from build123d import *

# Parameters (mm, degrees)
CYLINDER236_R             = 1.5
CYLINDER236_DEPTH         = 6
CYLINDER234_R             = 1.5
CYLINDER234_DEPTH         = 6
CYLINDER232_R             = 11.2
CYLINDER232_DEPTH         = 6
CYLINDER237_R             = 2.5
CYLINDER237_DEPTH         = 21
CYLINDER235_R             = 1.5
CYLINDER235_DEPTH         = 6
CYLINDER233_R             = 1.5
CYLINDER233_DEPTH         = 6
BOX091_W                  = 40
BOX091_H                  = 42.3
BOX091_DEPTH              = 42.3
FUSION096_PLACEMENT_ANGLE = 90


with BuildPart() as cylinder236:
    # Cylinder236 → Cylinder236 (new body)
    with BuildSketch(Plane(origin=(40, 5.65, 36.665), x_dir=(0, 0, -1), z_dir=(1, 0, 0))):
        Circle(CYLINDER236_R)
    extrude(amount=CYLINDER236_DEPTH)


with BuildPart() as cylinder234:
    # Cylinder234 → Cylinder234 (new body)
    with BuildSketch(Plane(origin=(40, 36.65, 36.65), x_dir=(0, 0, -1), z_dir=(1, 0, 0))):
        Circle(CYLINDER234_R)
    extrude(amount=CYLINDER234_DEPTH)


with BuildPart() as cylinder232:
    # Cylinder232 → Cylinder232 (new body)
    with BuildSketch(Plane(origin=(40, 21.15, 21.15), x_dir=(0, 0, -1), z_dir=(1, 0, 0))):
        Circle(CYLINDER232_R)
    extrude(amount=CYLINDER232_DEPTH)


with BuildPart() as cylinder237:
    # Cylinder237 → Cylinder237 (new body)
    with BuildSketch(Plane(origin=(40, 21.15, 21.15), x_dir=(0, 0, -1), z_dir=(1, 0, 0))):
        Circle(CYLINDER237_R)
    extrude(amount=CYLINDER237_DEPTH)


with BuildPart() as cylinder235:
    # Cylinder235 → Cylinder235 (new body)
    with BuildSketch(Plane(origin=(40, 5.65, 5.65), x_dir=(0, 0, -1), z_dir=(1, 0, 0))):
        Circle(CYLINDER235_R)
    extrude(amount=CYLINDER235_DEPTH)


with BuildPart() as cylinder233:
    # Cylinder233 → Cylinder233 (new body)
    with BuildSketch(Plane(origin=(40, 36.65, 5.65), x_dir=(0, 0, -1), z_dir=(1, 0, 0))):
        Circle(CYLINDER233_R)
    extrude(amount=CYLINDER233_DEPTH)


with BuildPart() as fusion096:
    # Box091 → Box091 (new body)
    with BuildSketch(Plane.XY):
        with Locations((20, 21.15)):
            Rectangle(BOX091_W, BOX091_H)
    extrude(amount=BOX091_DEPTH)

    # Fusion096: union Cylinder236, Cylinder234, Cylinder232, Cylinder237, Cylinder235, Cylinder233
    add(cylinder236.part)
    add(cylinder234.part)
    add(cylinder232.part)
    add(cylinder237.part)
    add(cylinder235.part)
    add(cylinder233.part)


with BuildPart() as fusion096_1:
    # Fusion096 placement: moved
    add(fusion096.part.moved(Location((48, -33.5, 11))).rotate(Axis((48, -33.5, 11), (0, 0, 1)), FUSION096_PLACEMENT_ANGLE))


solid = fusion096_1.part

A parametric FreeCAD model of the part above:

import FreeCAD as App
import Part
import Sketcher


def add_polygon(sketch, points):
    """Adds a closed chain of lines whose ends are joined by coincident constraints."""
    first, n = sketch.GeometryCount, len(points)
    for a, b in zip(points, points[1:] + points[:1]):
        sketch.addGeometry(Part.LineSegment(App.Vector(*a, 0), App.Vector(*b, 0)), False)
    for i in range(n):
        sketch.addConstraint(Sketcher.Constraint("Coincident", first + i, 2, first + (i + 1) % n, 1))

doc = App.newDocument("Part")
params = doc.addObject("Spreadsheet::Sheet", "Params")
for row, (alias, value) in enumerate([
    ("sketch1_diameter", "3 mm"),
    ("pad1_length", "6 mm"),
    ("sketch2_diameter", "3 mm"),
    ("pad2_length", "6 mm"),
    ("sketch3_diameter", "22.4 mm"),
    ("pad3_length", "6 mm"),
    ("sketch4_diameter", "5 mm"),
    ("pad4_length", "21 mm"),
    ("sketch5_diameter", "3 mm"),
    ("pad5_length", "6 mm"),
    ("sketch6_diameter", "3 mm"),
    ("pad6_length", "6 mm"),
    ("sketch7_width", "40 mm"),
    ("sketch7_height", "42.3 mm"),
    ("pad7_length", "42.3 mm"),
], start=1):
    params.set(f"A{row}", alias)
    params.set(f"B{row}", "=" + value)
    params.setAlias(f"B{row}", alias)

body = doc.addObject("PartDesign::Body", "Body")

sketch1 = body.newObject("Sketcher::SketchObject", "Sketch")
sketch1.AttachmentSupport = (doc.getObject("YZ_Plane"), [""])
sketch1.MapMode = "FlatFace"
sketch1.AttachmentOffset = App.Placement(App.Vector(0, 0, 40), App.Rotation())
sketch1.addGeometry(Part.Circle(App.Vector(5.7, 36.7, 0), App.Vector(0, 0, 1), 1.5), False)
sketch1.addConstraint([
    Sketcher.Constraint("Diameter", 0, 3.0),
    Sketcher.Constraint("DistanceX", -1, 1, 0, 3, 5.65),
    Sketcher.Constraint("DistanceY", -1, 1, 0, 3, 36.665),
])
sketch1.setExpression("Constraints[0]", "Params.sketch1_diameter")
pad1 = body.newObject("PartDesign::Pad", "Pad")
pad1.Profile = sketch1
pad1.setExpression("Length", "Params.pad1_length")
body2 = doc.addObject("PartDesign::Body", "Body001")

sketch2 = body2.newObject("Sketcher::SketchObject", "Sketch001")
sketch2.AttachmentSupport = (doc.getObject("YZ_Plane001"), [""])
sketch2.MapMode = "FlatFace"
sketch2.AttachmentOffset = App.Placement(App.Vector(0, 0, 40), App.Rotation())
sketch2.addGeometry(Part.Circle(App.Vector(36.6, 36.6, 0), App.Vector(0, 0, 1), 1.5), False)
sketch2.addConstraint([
    Sketcher.Constraint("Diameter", 0, 3.0),
    Sketcher.Constraint("DistanceX", -1, 1, 0, 3, 36.65),
    Sketcher.Constraint("DistanceY", -1, 1, 0, 3, 36.65),
])
sketch2.setExpression("Constraints[0]", "Params.sketch2_diameter")
pad2 = body2.newObject("PartDesign::Pad", "Pad001")
pad2.Profile = sketch2
pad2.setExpression("Length", "Params.pad2_length")
body3 = doc.addObject("PartDesign::Body", "Body002")

sketch3 = body3.newObject("Sketcher::SketchObject", "Sketch002")
sketch3.AttachmentSupport = (doc.getObject("YZ_Plane002"), [""])
sketch3.MapMode = "FlatFace"
sketch3.AttachmentOffset = App.Placement(App.Vector(0, 0, 40), App.Rotation())
sketch3.addGeometry(Part.Circle(App.Vector(21, 21, 0), App.Vector(0, 0, 1), 11), False)
sketch3.addConstraint([
    Sketcher.Constraint("Diameter", 0, 22.4),
    Sketcher.Constraint("DistanceX", -1, 1, 0, 3, 21.15),
    Sketcher.Constraint("DistanceY", -1, 1, 0, 3, 21.15),
])
sketch3.setExpression("Constraints[0]", "Params.sketch3_diameter")
pad3 = body3.newObject("PartDesign::Pad", "Pad002")
pad3.Profile = sketch3
pad3.setExpression("Length", "Params.pad3_length")
body4 = doc.addObject("PartDesign::Body", "Body003")

sketch4 = body4.newObject("Sketcher::SketchObject", "Sketch003")
sketch4.AttachmentSupport = (doc.getObject("YZ_Plane003"), [""])
sketch4.MapMode = "FlatFace"
sketch4.AttachmentOffset = App.Placement(App.Vector(0, 0, 40), App.Rotation())
sketch4.addGeometry(Part.Circle(App.Vector(21.1, 21.1, 0), App.Vector(0, 0, 1), 2.5), False)
sketch4.addConstraint([
    Sketcher.Constraint("Diameter", 0, 5.0),
    Sketcher.Constraint("DistanceX", -1, 1, 0, 3, 21.15),
    Sketcher.Constraint("DistanceY", -1, 1, 0, 3, 21.15),
])
sketch4.setExpression("Constraints[0]", "Params.sketch4_diameter")
pad4 = body4.newObject("PartDesign::Pad", "Pad003")
pad4.Profile = sketch4
pad4.setExpression("Length", "Params.pad4_length")
body5 = doc.addObject("PartDesign::Body", "Body004")

sketch5 = body5.newObject("Sketcher::SketchObject", "Sketch004")
sketch5.AttachmentSupport = (doc.getObject("YZ_Plane004"), [""])
sketch5.MapMode = "FlatFace"
sketch5.AttachmentOffset = App.Placement(App.Vector(0, 0, 40), App.Rotation())
sketch5.addGeometry(Part.Circle(App.Vector(5.7, 5.7, 0), App.Vector(0, 0, 1), 1.5), False)
sketch5.addConstraint([
    Sketcher.Constraint("Diameter", 0, 3.0),
    Sketcher.Constraint("DistanceX", -1, 1, 0, 3, 5.65),
    Sketcher.Constraint("DistanceY", -1, 1, 0, 3, 5.65),
])
sketch5.setExpression("Constraints[0]", "Params.sketch5_diameter")
pad5 = body5.newObject("PartDesign::Pad", "Pad004")
pad5.Profile = sketch5
pad5.setExpression("Length", "Params.pad5_length")
body6 = doc.addObject("PartDesign::Body", "Body005")

sketch6 = body6.newObject("Sketcher::SketchObject", "Sketch005")
sketch6.AttachmentSupport = (doc.getObject("YZ_Plane005"), [""])
sketch6.MapMode = "FlatFace"
sketch6.AttachmentOffset = App.Placement(App.Vector(0, 0, 40), App.Rotation())
sketch6.addGeometry(Part.Circle(App.Vector(36.6, 5.7, 0), App.Vector(0, 0, 1), 1.5), False)
sketch6.addConstraint([
    Sketcher.Constraint("Diameter", 0, 3.0),
    Sketcher.Constraint("DistanceX", -1, 1, 0, 3, 36.65),
    Sketcher.Constraint("DistanceY", -1, 1, 0, 3, 5.65),
])
sketch6.setExpression("Constraints[0]", "Params.sketch6_diameter")
pad6 = body6.newObject("PartDesign::Pad", "Pad005")
pad6.Profile = sketch6
pad6.setExpression("Length", "Params.pad6_length")
body7 = doc.addObject("PartDesign::Body", "Body006")

sketch7 = body7.newObject("Sketcher::SketchObject", "Sketch006")
sketch7.AttachmentSupport = (doc.getObject("XY_Plane006"), [""])
sketch7.MapMode = "FlatFace"
add_polygon(sketch7, [(0, 42), (0, 0), (40, 0), (40, 42)])
sketch7.addConstraint([
    Sketcher.Constraint("Vertical", 0),
    Sketcher.Constraint("Horizontal", 1),
    Sketcher.Constraint("Vertical", 2),
    Sketcher.Constraint("Horizontal", 3),
    Sketcher.Constraint("Coincident", 0, 2, -1, 1),
    Sketcher.Constraint("DistanceX", 1, 1, 1, 2, 40.0),
    Sketcher.Constraint("DistanceY", 0, 2, 0, 1, 42.3),
])
sketch7.setExpression("Constraints[9]", "Params.sketch7_width")
sketch7.setExpression("Constraints[10]", "Params.sketch7_height")
pad7 = body7.newObject("PartDesign::Pad", "Pad006")
pad7.Profile = sketch7
pad7.setExpression("Length", "Params.pad7_length")
doc.recompute()

boolean = body7.newObject("PartDesign::Boolean", "Boolean")
boolean.Type = "Fuse"
boolean.addObjects([body])
doc.recompute()

boolean2 = body7.newObject("PartDesign::Boolean", "Boolean001")
boolean2.Type = "Fuse"
boolean2.addObjects([body2])
doc.recompute()

boolean3 = body7.newObject("PartDesign::Boolean", "Boolean002")
boolean3.Type = "Fuse"
boolean3.addObjects([body3])
doc.recompute()

boolean4 = body7.newObject("PartDesign::Boolean", "Boolean003")
boolean4.Type = "Fuse"
boolean4.addObjects([body4])
doc.recompute()

boolean5 = body7.newObject("PartDesign::Boolean", "Boolean004")
boolean5.Type = "Fuse"
boolean5.addObjects([body5])
doc.recompute()

boolean6 = body7.newObject("PartDesign::Boolean", "Boolean005")
boolean6.Type = "Fuse"
boolean6.addObjects([body6])
body8 = doc.addObject("PartDesign::Body", "Body007")
doc.recompute()

body7.Placement = App.Placement(App.Vector(48, -33.5, 11), App.Rotation(App.Vector(0, 0, 1), 90))
boolean7 = body8.newObject("PartDesign::Boolean", "Boolean006")
boolean7.Type = "Fuse"
boolean7.addObjects([body7])

doc.recompute()
